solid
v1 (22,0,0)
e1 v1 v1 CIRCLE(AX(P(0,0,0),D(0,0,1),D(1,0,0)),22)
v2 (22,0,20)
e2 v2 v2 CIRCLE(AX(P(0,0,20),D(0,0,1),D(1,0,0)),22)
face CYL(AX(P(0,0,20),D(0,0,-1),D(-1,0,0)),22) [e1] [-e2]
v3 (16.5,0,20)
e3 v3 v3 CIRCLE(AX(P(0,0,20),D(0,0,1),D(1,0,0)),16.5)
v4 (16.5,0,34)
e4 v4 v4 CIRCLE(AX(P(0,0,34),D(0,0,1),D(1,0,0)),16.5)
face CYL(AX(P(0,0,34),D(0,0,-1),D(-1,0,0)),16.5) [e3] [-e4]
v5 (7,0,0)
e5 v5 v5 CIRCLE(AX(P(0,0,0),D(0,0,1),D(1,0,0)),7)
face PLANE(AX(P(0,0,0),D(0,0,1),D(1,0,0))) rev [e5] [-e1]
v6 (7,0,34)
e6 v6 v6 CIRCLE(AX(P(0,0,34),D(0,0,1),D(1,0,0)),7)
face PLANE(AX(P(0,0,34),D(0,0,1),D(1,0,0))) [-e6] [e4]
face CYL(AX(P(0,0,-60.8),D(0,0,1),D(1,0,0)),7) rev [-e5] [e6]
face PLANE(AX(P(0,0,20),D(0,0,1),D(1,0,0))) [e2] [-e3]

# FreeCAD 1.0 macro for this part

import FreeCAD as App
import Part
import Sketcher

doc = App.newDocument("Part")
body = doc.addObject("PartDesign::Body", "Body")

sketch1 = body.newObject("Sketcher::SketchObject", "Sketch")
sketch1.AttachmentSupport = (doc.getObject("XY_Plane"), [""])
sketch1.MapMode = "FlatFace"
sketch1.addGeometry(Part.Circle(App.Vector(0, 0, 0), App.Vector(0, 0, 1), 22), False)
sketch1.addConstraint([
    Sketcher.Constraint("Coincident", 0, 3, -1, 1),
    Sketcher.Constraint("Diameter", 0, 44.0),
])
pad1 = body.newObject("PartDesign::Pad", "Pad")
pad1.Profile = sketch1
pad1.Length = 20

sketch2 = body.newObject("Sketcher::SketchObject", "Sketch001")
sketch2.AttachmentSupport = (doc.getObject("XY_Plane"), [""])
sketch2.MapMode = "FlatFace"
sketch2.AttachmentOffset = App.Placement(App.Vector(0, 0, 20), App.Rotation())
sketch2.addGeometry(Part.Circle(App.Vector(0, 0, 0), App.Vector(0, 0, 1), 16), False)
sketch2.addConstraint([
    Sketcher.Constraint("Coincident", 0, 3, -1, 1),
    Sketcher.Constraint("Diameter", 0, 33.0),
])
pad2 = body.newObject("PartDesign::Pad", "Pad001")
pad2.Profile = sketch2
pad2.Length = 14

sketch3 = body.newObject("Sketcher::SketchObject", "Sketch002")
sketch3.AttachmentSupport = (doc.getObject("XY_Plane"), [""])
sketch3.MapMode = "FlatFace"
sketch3.AttachmentOffset = App.Placement(App.Vector(0, 0, 34), App.Rotation())
sketch3.addGeometry(Part.Circle(App.Vector(0, 0, 0), App.Vector(0, 0, 1), 7), False)
sketch3.addConstraint([
    Sketcher.Constraint("Coincident", 0, 3, -1, 1),
    Sketcher.Constraint("Diameter", 0, 14.0),
])
pocket1 = body.newObject("PartDesign::Pocket", "Pocket")
pocket1.Profile = sketch3
pocket1.Length = 94.8

doc.recompute()
